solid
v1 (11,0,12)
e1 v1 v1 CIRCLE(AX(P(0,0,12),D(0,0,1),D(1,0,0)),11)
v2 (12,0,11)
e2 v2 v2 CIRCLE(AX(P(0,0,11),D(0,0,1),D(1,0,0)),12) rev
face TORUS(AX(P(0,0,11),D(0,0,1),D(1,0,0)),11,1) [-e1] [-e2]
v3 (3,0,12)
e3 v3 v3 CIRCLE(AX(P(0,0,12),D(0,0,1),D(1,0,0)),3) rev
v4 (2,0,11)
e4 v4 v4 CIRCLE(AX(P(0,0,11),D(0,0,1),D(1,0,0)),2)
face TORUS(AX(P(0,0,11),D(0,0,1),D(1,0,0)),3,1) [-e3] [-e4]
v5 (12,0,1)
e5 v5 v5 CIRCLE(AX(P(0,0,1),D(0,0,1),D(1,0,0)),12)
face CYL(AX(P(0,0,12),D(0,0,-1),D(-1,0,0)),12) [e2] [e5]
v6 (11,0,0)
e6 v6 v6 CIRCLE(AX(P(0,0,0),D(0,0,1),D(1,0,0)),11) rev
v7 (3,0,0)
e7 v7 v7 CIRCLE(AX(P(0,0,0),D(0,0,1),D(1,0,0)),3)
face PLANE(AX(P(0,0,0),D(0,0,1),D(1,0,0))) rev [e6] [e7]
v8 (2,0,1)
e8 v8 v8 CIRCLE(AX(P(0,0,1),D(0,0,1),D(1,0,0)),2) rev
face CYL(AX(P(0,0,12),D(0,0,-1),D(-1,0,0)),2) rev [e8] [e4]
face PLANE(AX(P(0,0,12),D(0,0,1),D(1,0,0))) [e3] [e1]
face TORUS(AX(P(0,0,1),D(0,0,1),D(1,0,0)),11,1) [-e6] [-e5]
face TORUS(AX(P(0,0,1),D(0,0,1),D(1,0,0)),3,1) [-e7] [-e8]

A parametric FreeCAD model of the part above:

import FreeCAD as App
import Part
import Sketcher


def edges_at(feature, points):
    """Names of the edges that pass closest to the given points."""
    edges = feature.Shape.Edges
    near = lambda p: min(range(len(edges)), key=lambda i: edges[i].distToShape(Part.Vertex(*p))[0])
    return sorted({f"Edge{near(p) + 1}" for p in points})

doc = App.newDocument("Part")
body = doc.addObject("PartDesign::Body", "Body")

# Sketch on XY plane
sketch1 = body.newObject("Sketcher::SketchObject", "Sketch")
sketch1.AttachmentSupport = (doc.getObject("XY_Plane"), [""])
sketch1.MapMode = "FlatFace"
sketch1.addGeometry(Part.Circle(App.Vector(0, 0, 0), App.Vector(0, 0, 1), 12), False)
sketch1.addConstraint([
    Sketcher.Constraint("Coincident", 0, 3, -1, 1),
    Sketcher.Constraint("Diameter", 0, 24.0),
])
pad1 = body.newObject("PartDesign::Pad", "Pad")
pad1.Profile = sketch1
pad1.Length = 12
doc.recompute()

fillet = body.newObject("PartDesign::Fillet", "Fillet")
fillet.Base = (pad1, edges_at(pad1, [(-12, 0, 0), (-12, 0, 12)]))
fillet.Radius = 1

# Sketch on XY plane
sketch2 = body.newObject("Sketcher::SketchObject", "Sketch001")
sketch2.AttachmentSupport = (doc.getObject("XY_Plane"), [""])
sketch2.MapMode = "FlatFace"
sketch2.addGeometry(Part.Circle(App.Vector(0, 0, 0), App.Vector(0, 0, 1), 2), False)
sketch2.addConstraint([
    Sketcher.Constraint("Coincident", 0, 3, -1, 1),
    Sketcher.Constraint("Diameter", 0, 4.0),
])
pocket1 = body.newObject("PartDesign::Pocket", "Pocket")
pocket1.Profile = sketch2
pocket1.Length = 12
pocket1.Reversed = True
doc.recompute()

fillet2 = body.newObject("PartDesign::Fillet", "Fillet001")
fillet2.Base = (pocket1, edges_at(pocket1, [(2, 0, 12), (2, 0, 0)]))
fillet2.Radius = 1

doc.recompute()
